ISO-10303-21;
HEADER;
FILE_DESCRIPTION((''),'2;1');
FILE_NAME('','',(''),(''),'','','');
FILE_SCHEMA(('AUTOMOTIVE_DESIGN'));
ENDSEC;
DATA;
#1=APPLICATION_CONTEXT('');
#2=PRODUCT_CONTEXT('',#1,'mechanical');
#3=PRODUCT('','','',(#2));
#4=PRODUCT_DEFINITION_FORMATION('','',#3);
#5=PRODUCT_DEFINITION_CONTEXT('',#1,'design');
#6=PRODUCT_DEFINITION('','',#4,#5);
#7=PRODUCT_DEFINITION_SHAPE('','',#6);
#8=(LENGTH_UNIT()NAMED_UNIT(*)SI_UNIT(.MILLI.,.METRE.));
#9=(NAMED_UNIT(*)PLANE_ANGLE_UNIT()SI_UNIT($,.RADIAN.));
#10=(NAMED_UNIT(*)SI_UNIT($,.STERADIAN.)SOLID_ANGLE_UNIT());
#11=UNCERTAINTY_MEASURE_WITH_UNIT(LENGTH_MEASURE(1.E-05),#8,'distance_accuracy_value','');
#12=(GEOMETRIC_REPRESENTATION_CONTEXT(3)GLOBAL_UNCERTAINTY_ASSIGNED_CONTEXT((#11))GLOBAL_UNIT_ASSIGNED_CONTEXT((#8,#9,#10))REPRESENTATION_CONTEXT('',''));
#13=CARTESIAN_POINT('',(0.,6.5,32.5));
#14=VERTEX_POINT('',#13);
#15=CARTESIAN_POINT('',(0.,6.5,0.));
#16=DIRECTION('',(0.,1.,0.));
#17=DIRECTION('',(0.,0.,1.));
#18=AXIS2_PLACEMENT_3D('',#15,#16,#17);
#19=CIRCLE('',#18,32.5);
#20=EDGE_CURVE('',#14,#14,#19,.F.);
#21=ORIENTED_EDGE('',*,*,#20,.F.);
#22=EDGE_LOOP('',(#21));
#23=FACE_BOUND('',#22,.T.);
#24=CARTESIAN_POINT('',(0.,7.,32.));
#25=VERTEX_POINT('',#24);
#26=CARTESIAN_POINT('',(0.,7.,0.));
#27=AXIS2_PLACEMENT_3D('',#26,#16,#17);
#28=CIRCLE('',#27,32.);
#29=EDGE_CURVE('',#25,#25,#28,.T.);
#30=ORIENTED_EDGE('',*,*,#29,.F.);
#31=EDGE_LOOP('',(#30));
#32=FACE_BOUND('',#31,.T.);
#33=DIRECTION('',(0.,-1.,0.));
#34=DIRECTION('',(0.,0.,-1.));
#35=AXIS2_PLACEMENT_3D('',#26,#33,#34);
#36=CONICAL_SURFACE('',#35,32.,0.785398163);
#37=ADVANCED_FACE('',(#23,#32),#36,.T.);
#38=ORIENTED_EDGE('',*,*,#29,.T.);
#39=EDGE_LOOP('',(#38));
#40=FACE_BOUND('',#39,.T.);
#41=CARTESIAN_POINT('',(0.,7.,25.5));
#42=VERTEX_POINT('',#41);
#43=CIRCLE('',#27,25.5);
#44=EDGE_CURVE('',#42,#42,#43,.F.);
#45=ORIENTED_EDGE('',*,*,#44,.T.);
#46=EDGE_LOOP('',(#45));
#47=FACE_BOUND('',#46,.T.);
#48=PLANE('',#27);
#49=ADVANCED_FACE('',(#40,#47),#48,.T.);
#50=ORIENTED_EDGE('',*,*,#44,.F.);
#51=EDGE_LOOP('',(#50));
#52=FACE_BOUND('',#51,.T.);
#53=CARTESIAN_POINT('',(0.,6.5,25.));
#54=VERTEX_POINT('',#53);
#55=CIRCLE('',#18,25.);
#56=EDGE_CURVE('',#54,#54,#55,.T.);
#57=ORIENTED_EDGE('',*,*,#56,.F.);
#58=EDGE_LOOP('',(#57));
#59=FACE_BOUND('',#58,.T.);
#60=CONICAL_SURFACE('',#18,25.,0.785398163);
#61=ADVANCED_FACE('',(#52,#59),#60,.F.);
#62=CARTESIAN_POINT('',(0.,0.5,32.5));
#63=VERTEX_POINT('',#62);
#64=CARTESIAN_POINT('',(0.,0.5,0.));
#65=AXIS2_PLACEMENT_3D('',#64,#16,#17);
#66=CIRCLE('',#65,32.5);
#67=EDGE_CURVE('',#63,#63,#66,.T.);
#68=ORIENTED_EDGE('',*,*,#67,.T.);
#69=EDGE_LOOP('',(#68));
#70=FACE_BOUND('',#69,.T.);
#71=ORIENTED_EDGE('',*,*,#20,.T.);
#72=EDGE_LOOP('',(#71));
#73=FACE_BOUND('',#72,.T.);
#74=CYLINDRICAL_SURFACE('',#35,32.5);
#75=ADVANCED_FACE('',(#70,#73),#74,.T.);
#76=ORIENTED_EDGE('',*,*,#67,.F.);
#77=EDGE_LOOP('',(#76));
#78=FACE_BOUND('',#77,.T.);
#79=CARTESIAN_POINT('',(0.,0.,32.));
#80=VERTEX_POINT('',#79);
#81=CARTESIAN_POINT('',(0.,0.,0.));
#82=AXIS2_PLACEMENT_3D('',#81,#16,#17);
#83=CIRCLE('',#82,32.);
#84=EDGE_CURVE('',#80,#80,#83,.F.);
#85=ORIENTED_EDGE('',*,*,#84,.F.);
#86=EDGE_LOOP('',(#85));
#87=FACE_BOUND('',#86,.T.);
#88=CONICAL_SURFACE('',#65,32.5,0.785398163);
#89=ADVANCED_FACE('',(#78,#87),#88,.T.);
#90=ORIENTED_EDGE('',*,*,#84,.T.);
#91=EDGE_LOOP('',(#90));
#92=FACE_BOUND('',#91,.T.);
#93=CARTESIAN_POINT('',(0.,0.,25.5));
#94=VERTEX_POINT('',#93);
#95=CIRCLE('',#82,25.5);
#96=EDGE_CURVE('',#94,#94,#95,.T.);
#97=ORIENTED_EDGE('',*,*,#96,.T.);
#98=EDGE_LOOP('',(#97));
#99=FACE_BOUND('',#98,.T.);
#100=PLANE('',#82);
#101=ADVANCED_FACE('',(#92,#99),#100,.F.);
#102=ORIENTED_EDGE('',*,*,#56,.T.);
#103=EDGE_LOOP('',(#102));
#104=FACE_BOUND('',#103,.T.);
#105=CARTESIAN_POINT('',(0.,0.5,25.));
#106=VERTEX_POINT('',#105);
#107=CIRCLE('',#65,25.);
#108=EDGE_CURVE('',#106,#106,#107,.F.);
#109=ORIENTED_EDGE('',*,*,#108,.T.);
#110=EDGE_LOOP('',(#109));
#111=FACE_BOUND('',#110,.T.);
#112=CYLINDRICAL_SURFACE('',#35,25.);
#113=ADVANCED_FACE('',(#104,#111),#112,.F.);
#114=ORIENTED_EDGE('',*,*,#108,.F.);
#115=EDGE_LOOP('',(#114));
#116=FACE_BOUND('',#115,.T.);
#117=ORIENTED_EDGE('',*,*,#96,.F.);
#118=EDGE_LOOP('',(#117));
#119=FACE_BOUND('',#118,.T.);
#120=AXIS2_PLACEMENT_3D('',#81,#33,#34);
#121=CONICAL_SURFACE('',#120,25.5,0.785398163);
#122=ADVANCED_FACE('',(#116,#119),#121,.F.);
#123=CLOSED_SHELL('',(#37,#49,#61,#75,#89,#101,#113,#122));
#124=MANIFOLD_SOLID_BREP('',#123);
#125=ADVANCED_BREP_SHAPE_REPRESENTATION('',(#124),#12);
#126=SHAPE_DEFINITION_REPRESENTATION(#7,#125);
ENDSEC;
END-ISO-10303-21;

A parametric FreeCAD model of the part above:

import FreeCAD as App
import Part
import Sketcher


def edges_at(feature, points):
    """Names of the edges that pass closest to the given points."""
    edges = feature.Shape.Edges
    near = lambda p: min(range(len(edges)), key=lambda i: edges[i].distToShape(Part.Vertex(*p))[0])
    return sorted({f"Edge{near(p) + 1}" for p in points})

doc = App.newDocument("Part")
params = doc.addObject("Spreadsheet::Sheet", "Params")
for row, (alias, value) in enumerate([
    ("sketch1_diameter", "65 mm"),
    ("sketch1_diameter2", "50 mm"),
    ("pad1_length", "7 mm"),
    ("chamfer_size", "0.5 mm"),
], start=1):
    params.set(f"A{row}", alias)
    params.set(f"B{row}", "=" + value)
    params.setAlias(f"B{row}", alias)

body = doc.addObject("PartDesign::Body", "Body")

sketch1 = body.newObject("Sketcher::SketchObject", "Sketch")
sketch1.AttachmentSupport = (doc.getObject("XZ_Plane"), [""])
sketch1.MapMode = "FlatFace"
sketch1.addGeometry(Part.Circle(App.Vector(0, 0, 0), App.Vector(0, 0, 1), 32.5), False)
sketch1.addGeometry(Part.Circle(App.Vector(0, 0, 0), App.Vector(0, 0, 1), 25), False)
sketch1.addConstraint(Sketcher.Constraint("Coincident", 0, 3, -1, 1))
sketch1.addConstraint(Sketcher.Constraint("Coincident", 1, 3, -1, 1))
sketch1.addConstraint(Sketcher.Constraint("Diameter", 0, 65.0))
sketch1.addConstraint(Sketcher.Constraint("Diameter", 1, 50.0))
sketch1.setExpression("Constraints[2]", "Params.sketch1_diameter")
sketch1.setExpression("Constraints[3]", "Params.sketch1_diameter2")
pad1 = body.newObject("PartDesign::Pad", "Pad")
pad1.Profile = sketch1
pad1.setExpression("Length", "Params.pad1_length")
pad1.Reversed = True
doc.recompute()

chamfer = body.newObject("PartDesign::Chamfer", "Chamfer")
chamfer.Base = (pad1, edges_at(pad1, [
    (-32.5, 0, 0),
    (-32.5, 7, 0),
    (-25, 0, 0),
    (-25, 7, 0),
]))
chamfer.setExpression("Size", "Params.chamfer_size")

doc.recompute()
